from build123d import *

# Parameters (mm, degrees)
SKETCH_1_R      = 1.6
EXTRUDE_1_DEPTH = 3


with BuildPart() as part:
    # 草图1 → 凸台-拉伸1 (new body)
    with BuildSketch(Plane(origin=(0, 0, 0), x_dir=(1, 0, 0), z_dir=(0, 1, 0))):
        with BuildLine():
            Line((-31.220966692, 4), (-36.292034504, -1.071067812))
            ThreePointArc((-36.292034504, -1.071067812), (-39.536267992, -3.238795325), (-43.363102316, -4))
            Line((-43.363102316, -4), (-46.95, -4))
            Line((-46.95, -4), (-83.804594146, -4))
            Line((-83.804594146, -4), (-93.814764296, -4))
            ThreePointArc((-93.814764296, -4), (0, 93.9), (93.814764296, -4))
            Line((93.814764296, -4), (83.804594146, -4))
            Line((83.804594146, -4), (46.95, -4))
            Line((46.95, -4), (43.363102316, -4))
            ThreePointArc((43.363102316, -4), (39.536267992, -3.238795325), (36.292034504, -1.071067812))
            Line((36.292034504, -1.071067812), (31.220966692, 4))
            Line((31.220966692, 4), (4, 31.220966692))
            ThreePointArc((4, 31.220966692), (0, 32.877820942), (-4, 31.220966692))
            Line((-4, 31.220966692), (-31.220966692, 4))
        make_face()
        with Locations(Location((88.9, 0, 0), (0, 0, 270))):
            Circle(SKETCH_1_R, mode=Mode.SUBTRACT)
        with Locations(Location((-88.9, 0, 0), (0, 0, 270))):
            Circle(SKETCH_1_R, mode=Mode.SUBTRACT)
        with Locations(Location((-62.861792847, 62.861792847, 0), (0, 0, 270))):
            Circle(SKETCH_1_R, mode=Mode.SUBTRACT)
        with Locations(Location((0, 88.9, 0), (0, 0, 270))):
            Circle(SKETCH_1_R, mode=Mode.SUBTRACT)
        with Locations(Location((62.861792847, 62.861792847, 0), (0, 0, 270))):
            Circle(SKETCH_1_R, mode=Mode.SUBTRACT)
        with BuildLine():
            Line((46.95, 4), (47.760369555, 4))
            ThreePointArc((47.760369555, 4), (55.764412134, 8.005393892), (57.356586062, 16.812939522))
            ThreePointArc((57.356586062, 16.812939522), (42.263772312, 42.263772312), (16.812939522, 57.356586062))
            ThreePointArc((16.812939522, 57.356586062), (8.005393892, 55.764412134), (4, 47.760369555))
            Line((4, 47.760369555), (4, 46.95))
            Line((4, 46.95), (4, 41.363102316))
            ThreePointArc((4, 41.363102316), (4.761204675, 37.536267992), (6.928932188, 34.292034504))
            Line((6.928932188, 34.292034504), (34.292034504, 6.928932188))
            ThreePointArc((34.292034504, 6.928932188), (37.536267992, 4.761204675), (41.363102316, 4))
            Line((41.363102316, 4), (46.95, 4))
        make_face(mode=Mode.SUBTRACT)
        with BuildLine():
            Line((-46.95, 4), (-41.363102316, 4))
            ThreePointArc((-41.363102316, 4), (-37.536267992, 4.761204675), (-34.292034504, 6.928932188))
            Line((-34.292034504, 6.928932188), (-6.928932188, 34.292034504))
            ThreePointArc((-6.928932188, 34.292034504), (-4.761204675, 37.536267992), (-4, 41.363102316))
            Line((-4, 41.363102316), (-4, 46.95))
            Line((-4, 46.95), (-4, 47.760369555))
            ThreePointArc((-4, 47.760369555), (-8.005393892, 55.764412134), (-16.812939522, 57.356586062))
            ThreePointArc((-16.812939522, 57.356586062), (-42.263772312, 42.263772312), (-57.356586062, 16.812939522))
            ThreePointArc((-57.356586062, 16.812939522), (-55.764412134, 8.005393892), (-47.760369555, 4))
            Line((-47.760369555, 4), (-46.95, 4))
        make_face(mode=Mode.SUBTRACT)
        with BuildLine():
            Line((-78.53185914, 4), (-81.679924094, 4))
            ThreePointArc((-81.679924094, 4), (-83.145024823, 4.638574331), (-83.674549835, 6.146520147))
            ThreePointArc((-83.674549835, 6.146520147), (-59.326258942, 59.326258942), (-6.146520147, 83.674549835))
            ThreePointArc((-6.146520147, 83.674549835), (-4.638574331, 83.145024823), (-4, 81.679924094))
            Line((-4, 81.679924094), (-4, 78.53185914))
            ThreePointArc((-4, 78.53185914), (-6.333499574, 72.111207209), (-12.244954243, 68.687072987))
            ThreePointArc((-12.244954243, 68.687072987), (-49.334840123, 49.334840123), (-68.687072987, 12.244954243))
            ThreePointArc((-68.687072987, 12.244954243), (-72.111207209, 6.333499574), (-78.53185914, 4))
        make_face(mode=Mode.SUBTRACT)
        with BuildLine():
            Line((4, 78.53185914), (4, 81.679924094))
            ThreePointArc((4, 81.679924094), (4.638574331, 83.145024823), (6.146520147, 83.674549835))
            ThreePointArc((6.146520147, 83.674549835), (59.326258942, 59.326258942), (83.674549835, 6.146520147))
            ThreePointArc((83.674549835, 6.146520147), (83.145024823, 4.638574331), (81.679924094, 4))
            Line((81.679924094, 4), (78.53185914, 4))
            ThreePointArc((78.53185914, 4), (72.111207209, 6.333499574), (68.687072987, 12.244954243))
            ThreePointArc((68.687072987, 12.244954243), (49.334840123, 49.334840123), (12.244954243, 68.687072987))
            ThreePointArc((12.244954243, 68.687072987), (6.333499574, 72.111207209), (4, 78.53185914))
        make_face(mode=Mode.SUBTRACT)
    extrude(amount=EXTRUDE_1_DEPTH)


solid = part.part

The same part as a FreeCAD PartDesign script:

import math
import FreeCAD as App
import Part
import Sketcher
from FreeCAD import Vector

doc = App.newDocument("Part")
body = doc.addObject("PartDesign::Body", "Body")

# Sketch on XZ plane
sketch1 = body.newObject("Sketcher::SketchObject", "Sketch")
sketch1.AttachmentSupport = (doc.getObject("XZ_Plane"), [""])
sketch1.MapMode = "FlatFace"
sketch1.addGeometry(Part.ArcOfCircle(Part.Circle(Vector(-43.4, -6, 0), Vector(0, 0, 1), 10), math.radians(45), math.radians(90)), False)
sketch1.addGeometry(Part.LineSegment(Vector(-36.3, 1.1, 0), Vector(-4, -31.2, 0)), False)
sketch1.addGeometry(Part.ArcOfCircle(Part.Circle(Vector(0, -27.2, 0), Vector(0, 0, 1), 5.7), math.radians(-135), math.radians(-45)), False)
sketch1.addGeometry(Part.LineSegment(Vector(4, -31.2, 0), Vector(36.3, 1.1, 0)), False)
sketch1.addGeometry(Part.ArcOfCircle(Part.Circle(Vector(43.4, -6, 0), Vector(0, 0, 1), 10), math.radians(90), math.radians(135)), False)
sketch1.addGeometry(Part.LineSegment(Vector(43.4, 4, 0), Vector(93.8, 4, 0)), False)
sketch1.addGeometry(Part.ArcOfCircle(Part.Circle(Vector(0, 0, 0), Vector(0, 0, 1), 93.9), math.radians(178), math.radians(362)), False)
sketch1.addGeometry(Part.LineSegment(Vector(-93.8, 4, 0), Vector(-43.4, 4, 0)), False)
sketch1.addGeometry(Part.Circle(Vector(88.9, 0, 0), Vector(0, 0, 1), 1.6), False)
sketch1.addGeometry(Part.LineSegment(Vector(47.8, -4, 0), Vector(41.4, -4, 0)), False)
sketch1.addGeometry(Part.ArcOfCircle(Part.Circle(Vector(41.4, -14, 0), Vector(0, 0, 1), 10), math.radians(90), math.radians(135)), False)
sketch1.addGeometry(Part.LineSegment(Vector(34.3, -6.9, 0), Vector(6.9, -34.3, 0)), False)
sketch1.addGeometry(Part.ArcOfCircle(Part.Circle(Vector(14, -41.4, 0), Vector(0, 0, 1), 10), math.radians(135), math.radians(180)), False)
sketch1.addGeometry(Part.LineSegment(Vector(4, -41.4, 0), Vector(4, -47.8, 0)), False)
sketch1.addGeometry(Part.ArcOfCircle(Part.Circle(Vector(14, -47.8, 0), Vector(0, 0, 1), 10), math.radians(180), math.radians(286)), False)
sketch1.addGeometry(Part.ArcOfCircle(Part.Circle(Vector(0, 0, 0), Vector(0, 0, 1), 59.8), math.radians(-74), math.radians(-16)), False)
sketch1.addGeometry(Part.ArcOfCircle(Part.Circle(Vector(47.8, -14, 0), Vector(0, 0, 1), 10), math.radians(-16), math.radians(90)), False)
sketch1.addGeometry(Part.LineSegment(Vector(4, -78.5, 0), Vector(4, -81.7, 0)), False)
sketch1.addGeometry(Part.ArcOfCircle(Part.Circle(Vector(6, -81.7, 0), Vector(0, 0, 1), 2), math.radians(-180), math.radians(-86)), False)
sketch1.addGeometry(Part.ArcOfCircle(Part.Circle(Vector(0, 0, 0), Vector(0, 0, 1), 83.9), math.radians(-86), math.radians(-4)), False)
sketch1.addGeometry(Part.ArcOfCircle(Part.Circle(Vector(81.7, -6, 0), Vector(0, 0, 1), 2), math.radians(-4), math.radians(90)), False)
sketch1.addGeometry(Part.LineSegment(Vector(81.7, -4, 0), Vector(78.5, -4, 0)), False)
sketch1.addGeometry(Part.ArcOfCircle(Part.Circle(Vector(78.5, -14, 0), Vector(0, 0, 1), 10), math.radians(90), math.radians(170)), False)
sketch1.addGeometry(Part.ArcOfCircle(Part.Circle(Vector(0, 0, 0), Vector(0, 0, 1), 69.8), math.radians(-80), math.radians(-10)), False)
sketch1.addGeometry(Part.ArcOfCircle(Part.Circle(Vector(14, -78.5, 0), Vector(0, 0, 1), 10), math.radians(100), math.radians(180)), False)
sketch1.addGeometry(Part.Circle(Vector(-88.9, 0, 0), Vector(0, 0, 1), 1.6), False)
sketch1.addGeometry(Part.LineSegment(Vector(-41.4, -4, 0), Vector(-47.8, -4, 0)), False)
sketch1.addGeometry(Part.ArcOfCircle(Part.Circle(Vector(-47.8, -14, 0), Vector(0, 0, 1), 10), math.radians(90), math.radians(196)), False)
sketch1.addGeometry(Part.ArcOfCircle(Part.Circle(Vector(0, 0, 0), Vector(0, 0, 1), 59.8), math.radians(-164), math.radians(-106)), False)
sketch1.addGeometry(Part.ArcOfCircle(Part.Circle(Vector(-14, -47.8, 0), Vector(0, 0, 1), 10), math.radians(-106), math.radians(0)), False)
sketch1.addGeometry(Part.LineSegment(Vector(-4, -47.8, 0), Vector(-4, -41.4, 0)), False)
sketch1.addGeometry(Part.ArcOfCircle(Part.Circle(Vector(-14, -41.4, 0), Vector(0, 0, 1), 10), math.radians(0), math.radians(45)), False)
sketch1.addGeometry(Part.LineSegment(Vector(-6.9, -34.3, 0), Vector(-34.3, -6.9, 0)), False)
sketch1.addGeometry(Part.ArcOfCircle(Part.Circle(Vector(-41.4, -14, 0), Vector(0, 0, 1), 10), math.radians(45), math.radians(90)), False)
sketch1.addGeometry(Part.LineSegment(Vector(-78.5, -4, 0), Vector(-81.7, -4, 0)), False)
sketch1.addGeometry(Part.ArcOfCircle(Part.Circle(Vector(-81.7, -6, 0), Vector(0, 0, 1), 2), math.radians(90), math.radians(184)), False)
sketch1.addGeometry(Part.ArcOfCircle(Part.Circle(Vector(0, 0, 0), Vector(0, 0, 1), 83.9), math.radians(-176), math.radians(-94)), False)
sketch1.addGeometry(Part.ArcOfCircle(Part.Circle(Vector(-6, -81.7, 0), Vector(0, 0, 1), 2), math.radians(-94), math.radians(0)), False)
sketch1.addGeometry(Part.LineSegment(Vector(-4, -81.7, 0), Vector(-4, -78.5, 0)), False)
sketch1.addGeometry(Part.ArcOfCircle(Part.Circle(Vector(-14, -78.5, 0), Vector(0, 0, 1), 10), math.radians(0), math.radians(80)), False)
sketch1.addGeometry(Part.ArcOfCircle(Part.Circle(Vector(0, 0, 0), Vector(0, 0, 1), 69.8), math.radians(-170), math.radians(-100)), False)
sketch1.addGeometry(Part.ArcOfCircle(Part.Circle(Vector(-78.5, -14, 0), Vector(0, 0, 1), 10), math.radians(10), math.radians(90)), False)
sketch1.addGeometry(Part.Circle(Vector(62.9, -62.9, 0), Vector(0, 0, 1), 1.6), False)
sketch1.addGeometry(Part.Circle(Vector(-62.9, -62.9, 0), Vector(0, 0, 1), 1.6), False)
sketch1.addGeometry(Part.Circle(Vector(0, -88.9, 0), Vector(0, 0, 1), 1.6), False)
sketch1.addConstraint(Sketcher.Constraint("Tangent", 0, 1, 1, 1))
sketch1.addConstraint(Sketcher.Constraint("Tangent", 1, 2, 2, 1))
sketch1.addConstraint(Sketcher.Constraint("Tangent", 2, 2, 3, 1))
sketch1.addConstraint(Sketcher.Constraint("Tangent", 3, 2, 4, 2))
sketch1.addConstraint(Sketcher.Constraint("Tangent", 4, 1, 5, 1))
sketch1.addConstraint(Sketcher.Constraint("Coincident", 5, 2, 6, 2))
sketch1.addConstraint(Sketcher.Constraint("Coincident", 6, 1, 7, 1))
sketch1.addConstraint(Sketcher.Constraint("Tangent", 7, 2, 0, 2))
sketch1.addConstraint(Sketcher.Constraint("Tangent", 9, 2, 10, 1))
sketch1.addConstraint(Sketcher.Constraint("Tangent", 10, 2, 11, 1))
sketch1.addConstraint(Sketcher.Constraint("Tangent", 11, 2, 12, 1))
sketch1.addConstraint(Sketcher.Constraint("Tangent", 12, 2, 13, 1))
sketch1.addConstraint(Sketcher.Constraint("Tangent", 13, 2, 14, 1))
sketch1.addConstraint(Sketcher.Constraint("Tangent", 14, 2, 15, 1))
sketch1.addConstraint(Sketcher.Constraint("Tangent", 15, 2, 16, 1))
sketch1.addConstraint(Sketcher.Constraint("Tangent", 16, 2, 9, 1))
sketch1.addConstraint(Sketcher.Constraint("Tangent", 17, 2, 18, 1))
sketch1.addConstraint(Sketcher.Constraint("Tangent", 18, 2, 19, 1))
sketch1.addConstraint(Sketcher.Constraint("Tangent", 19, 2, 20, 1))
sketch1.addConstraint(Sketcher.Constraint("Tangent", 20, 2, 21, 1))
sketch1.addConstraint(Sketcher.Constraint("Tangent", 21, 2, 22, 1))
sketch1.addConstraint(Sketcher.Constraint("Tangent", 22, 2, 23, 2))
sketch1.addConstraint(Sketcher.Constraint("Tangent", 23, 1, 24, 1))
sketch1.addConstraint(Sketcher.Constraint("Tangent", 24, 2, 17, 1))
sketch1.addConstraint(Sketcher.Constraint("Tangent", 26, 2, 27, 1))
sketch1.addConstraint(Sketcher.Constraint("Tangent", 27, 2, 28, 1))
sketch1.addConstraint(Sketcher.Constraint("Tangent", 28, 2, 29, 1))
sketch1.addConstraint(Sketcher.Constraint("Tangent", 29, 2, 30, 1))
sketch1.addConstraint(Sketcher.Constraint("Tangent", 30, 2, 31, 1))
sketch1.addConstraint(Sketcher.Constraint("Tangent", 31, 2, 32, 1))
sketch1.addConstraint(Sketcher.Constraint("Tangent", 32, 2, 33, 1))
sketch1.addConstraint(Sketcher.Constraint("Tangent", 33, 2, 26, 1))
sketch1.addConstraint(Sketcher.Constraint("Tangent", 34, 2, 35, 1))
sketch1.addConstraint(Sketcher.Constraint("Tangent", 35, 2, 36, 1))
sketch1.addConstraint(Sketcher.Constraint("Tangent", 36, 2, 37, 1))
sketch1.addConstraint(Sketcher.Constraint("Tangent", 37, 2, 38, 1))
sketch1.addConstraint(Sketcher.Constraint("Tangent", 38, 2, 39, 1))
sketch1.addConstraint(Sketcher.Constraint("Tangent", 39, 2, 40, 2))
sketch1.addConstraint(Sketcher.Constraint("Tangent", 40, 1, 41, 1))
sketch1.addConstraint(Sketcher.Constraint("Tangent", 41, 2, 34, 1))
sketch1.addConstraint(Sketcher.Constraint("Horizontal", 5))
sketch1.addConstraint(Sketcher.Constraint("Horizontal", 7))
sketch1.addConstraint(Sketcher.Constraint("Horizontal", 9))
sketch1.addConstraint(Sketcher.Constraint("Vertical", 13))
sketch1.addConstraint(Sketcher.Constraint("Vertical", 17))
sketch1.addConstraint(Sketcher.Constraint("Horizontal", 21))
sketch1.addConstraint(Sketcher.Constraint("Horizontal", 26))
sketch1.addConstraint(Sketcher.Constraint("Vertical", 30))
sketch1.addConstraint(Sketcher.Constraint("Horizontal", 34))
sketch1.addConstraint(Sketcher.Constraint("Vertical", 38))
sketch1.addConstraint(Sketcher.Constraint("Coincident", 6, 3, -1, 1))
sketch1.addConstraint(Sketcher.Constraint("Coincident", 15, 3, -1, 1))
sketch1.addConstraint(Sketcher.Constraint("Coincident", 19, 3, -1, 1))
sketch1.addConstraint(Sketcher.Constraint("Coincident", 23, 3, -1, 1))
sketch1.addConstraint(Sketcher.Constraint("Coincident", 28, 3, -1, 1))
sketch1.addConstraint(Sketcher.Constraint("Coincident", 36, 3, -1, 1))
sketch1.addConstraint(Sketcher.Constraint("Coincident", 40, 3, -1, 1))
sketch1.addConstraint(Sketcher.Constraint("Equal", 0, 4))
sketch1.addConstraint(Sketcher.Constraint("Equal", 4, 10))
sketch1.addConstraint(Sketcher.Constraint("Equal", 10, 12))
sketch1.addConstraint(Sketcher.Constraint("Equal", 12, 14))
sketch1.addConstraint(Sketcher.Constraint("Equal", 14, 16))
sketch1.addConstraint(Sketcher.Constraint("Equal", 18, 20))
sketch1.addConstraint(Sketcher.Constraint("Equal", 16, 22))
sketch1.addConstraint(Sketcher.Constraint("Equal", 22, 24))
sketch1.addConstraint(Sketcher.Constraint("Equal", 8, 25))
sketch1.addConstraint(Sketcher.Constraint("Equal", 24, 27))
sketch1.addConstraint(Sketcher.Constraint("Equal", 15, 28))
sketch1.addConstraint(Sketcher.Constraint("Equal", 27, 29))
sketch1.addConstraint(Sketcher.Constraint("Equal", 29, 31))
sketch1.addConstraint(Sketcher.Constraint("Equal", 31, 33))
sketch1.addConstraint(Sketcher.Constraint("Equal", 20, 35))
sketch1.addConstraint(Sketcher.Constraint("Equal", 19, 36))
sketch1.addConstraint(Sketcher.Constraint("Equal", 35, 37))
sketch1.addConstraint(Sketcher.Constraint("Equal", 33, 39))
sketch1.addConstraint(Sketcher.Constraint("Equal", 23, 40))
sketch1.addConstraint(Sketcher.Constraint("Equal", 39, 41))
sketch1.addConstraint(Sketcher.Constraint("Equal", 25, 42))
sketch1.addConstraint(Sketcher.Constraint("Equal", 42, 43))
sketch1.addConstraint(Sketcher.Constraint("Equal", 43, 44))
sketch1.addConstraint(Sketcher.Constraint("Symmetric", 8, 3, 25, 3, -1, 1))
sketch1.addConstraint(Sketcher.Constraint("Symmetric", 0, 3, 4, 3, -2))
sketch1.addConstraint(Sketcher.Constraint("Symmetric", 12, 3, 31, 3, -2))
sketch1.addConstraint(Sketcher.Constraint("Symmetric", 10, 3, 33, 3, -2))
sketch1.addConstraint(Sketcher.Constraint("Symmetric", 42, 3, 43, 3, -2))
sketch1.addConstraint(Sketcher.Constraint("PointOnObject", 2, 3, -2))
sketch1.addConstraint(Sketcher.Constraint("PointOnObject", 8, 3, -1))
sketch1.addConstraint(Sketcher.Constraint("PointOnObject", 44, 3, -2))
sketch1.addConstraint(Sketcher.Constraint("Perpendicular", 1, 3))
sketch1.addConstraint(Sketcher.Constraint("Parallel", 3, 11))
sketch1.addConstraint(Sketcher.Constraint("Horizontal", 4, 3, 20, 3))
sketch1.addConstraint(Sketcher.Constraint("Horizontal", 16, 3, 22, 3))
sketch1.addConstraint(Sketcher.Constraint("Horizontal", 20, 3, 35, 3))
sketch1.addConstraint(Sketcher.Constraint("Horizontal", 18, 3, 37, 3))
sketch1.addConstraint(Sketcher.Constraint("Vertical", 14, 3, 24, 3))
sketch1.addConstraint(Sketcher.Constraint("Vertical", 2, 2, 12, 2))
sketch1.addConstraint(Sketcher.Constraint("Equal", 26, 13))
sketch1.addConstraint(Sketcher.Constraint("Radius", 0, 10.0))
sketch1.addConstraint(Sketcher.Constraint("Radius", 18, 2.0))
sketch1.addConstraint(Sketcher.Constraint("Diameter", 8, 3.2))
sketch1.addConstraint(Sketcher.Constraint("Radius", 6, 93.9))
sketch1.addConstraint(Sketcher.Constraint("Radius", 19, 83.9))
sketch1.addConstraint(Sketcher.Constraint("Radius", 15, 59.77))
sketch1.addConstraint(Sketcher.Constraint("Radius", 23, 69.77))
sketch1.addConstraint(Sketcher.Constraint("DistanceY", 0, 3, -1, 1, 6.0))
sketch1.addConstraint(Sketcher.Constraint("DistanceX", -1, 1, 8, 3, 88.9))
sketch1.addConstraint(Sketcher.Constraint("DistanceY", 44, 3, -1, 1, 88.9))
sketch1.addConstraint(Sketcher.Constraint("DistanceX", 5, 1, 5, 2, 50.451662))
sketch1.addConstraint(Sketcher.Constraint("Distance", 11, 38.69727))
sketch1.addConstraint(Sketcher.Constraint("DistanceX", -1, 1, 42, 3, 62.861793))
sketch1.addConstraint(Sketcher.Constraint("DistanceY", 42, 3, -1, 1, 62.861793))
pad1 = body.newObject("PartDesign::Pad", "Pad")
pad1.Profile = sketch1
pad1.Length = 3
pad1.Reversed = True

doc.recompute()
